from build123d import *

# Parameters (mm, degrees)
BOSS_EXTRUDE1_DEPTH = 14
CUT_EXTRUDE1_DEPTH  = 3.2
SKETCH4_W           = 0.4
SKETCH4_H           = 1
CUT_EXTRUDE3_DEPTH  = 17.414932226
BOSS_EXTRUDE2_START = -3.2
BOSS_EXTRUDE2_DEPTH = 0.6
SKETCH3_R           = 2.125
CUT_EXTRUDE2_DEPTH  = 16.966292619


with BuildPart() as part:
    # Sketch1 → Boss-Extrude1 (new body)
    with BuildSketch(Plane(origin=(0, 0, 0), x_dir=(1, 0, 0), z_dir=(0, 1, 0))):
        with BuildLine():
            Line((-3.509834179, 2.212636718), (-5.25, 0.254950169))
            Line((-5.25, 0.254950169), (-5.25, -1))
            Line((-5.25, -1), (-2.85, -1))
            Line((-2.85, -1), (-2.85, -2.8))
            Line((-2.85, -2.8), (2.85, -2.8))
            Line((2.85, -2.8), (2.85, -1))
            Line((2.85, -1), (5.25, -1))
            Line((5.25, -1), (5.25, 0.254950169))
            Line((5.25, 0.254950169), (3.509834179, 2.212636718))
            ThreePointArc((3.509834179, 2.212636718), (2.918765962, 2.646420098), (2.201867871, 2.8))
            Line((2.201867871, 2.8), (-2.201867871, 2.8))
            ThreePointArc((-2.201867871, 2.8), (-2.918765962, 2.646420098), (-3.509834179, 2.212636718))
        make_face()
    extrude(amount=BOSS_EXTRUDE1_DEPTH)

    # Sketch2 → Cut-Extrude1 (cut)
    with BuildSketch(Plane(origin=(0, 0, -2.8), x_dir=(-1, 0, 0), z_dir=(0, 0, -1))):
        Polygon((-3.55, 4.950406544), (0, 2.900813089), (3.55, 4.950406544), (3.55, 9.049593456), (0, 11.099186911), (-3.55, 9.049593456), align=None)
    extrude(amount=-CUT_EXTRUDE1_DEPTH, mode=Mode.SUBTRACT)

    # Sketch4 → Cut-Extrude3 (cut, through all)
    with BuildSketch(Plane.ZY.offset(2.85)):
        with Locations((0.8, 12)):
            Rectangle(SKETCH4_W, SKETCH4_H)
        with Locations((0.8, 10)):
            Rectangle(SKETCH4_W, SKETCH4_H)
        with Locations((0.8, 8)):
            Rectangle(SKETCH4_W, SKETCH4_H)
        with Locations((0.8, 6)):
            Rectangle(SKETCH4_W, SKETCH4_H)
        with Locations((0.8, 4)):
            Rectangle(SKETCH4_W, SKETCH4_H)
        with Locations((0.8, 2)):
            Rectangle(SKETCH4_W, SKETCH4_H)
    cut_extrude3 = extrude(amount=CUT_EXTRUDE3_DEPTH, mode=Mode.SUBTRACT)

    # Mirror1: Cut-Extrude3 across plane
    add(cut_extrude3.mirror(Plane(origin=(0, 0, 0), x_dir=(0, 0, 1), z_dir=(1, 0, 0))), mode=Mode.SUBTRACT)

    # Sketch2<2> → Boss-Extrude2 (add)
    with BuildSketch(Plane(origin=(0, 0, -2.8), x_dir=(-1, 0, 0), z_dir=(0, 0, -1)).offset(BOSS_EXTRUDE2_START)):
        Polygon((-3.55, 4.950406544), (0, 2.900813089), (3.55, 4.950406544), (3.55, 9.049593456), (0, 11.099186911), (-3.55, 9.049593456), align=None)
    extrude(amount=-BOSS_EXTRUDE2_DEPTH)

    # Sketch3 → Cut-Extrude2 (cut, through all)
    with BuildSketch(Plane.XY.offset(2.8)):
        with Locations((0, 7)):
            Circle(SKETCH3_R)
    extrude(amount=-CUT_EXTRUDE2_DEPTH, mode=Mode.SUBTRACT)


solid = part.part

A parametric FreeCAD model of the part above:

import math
import FreeCAD as App
import Part
import Sketcher

V = App.Vector
Q = App.Units.Quantity

doc = App.newDocument("Part")
params = doc.addObject("Spreadsheet::Sheet", "Params")
for row, (alias, value) in enumerate([
    ("sketch1_radius", "1.75 mm"),
    ("sketch1_width", "2.4 mm"),
    ("sketch1_width2", "5.7 mm"),
    ("sketch1_height", "1.8 mm"),
    ("pad1_length", "14 mm"),
    ("pocket1_length", "3.2 mm"),
    ("sketch3_width", "1 mm"),
    ("sketch3_height", "0.4 mm"),
    ("pad2_length", "0.6 mm"),
    ("sketch5_diameter", "4.25 mm"),
], start=1):
    params.set(f"A{row}", alias)
    params.set(f"B{row}", "=" + value)
    params.setAlias(f"B{row}", alias)

body = doc.addObject("PartDesign::Body", "Body")

# Sketch on XZ plane
sketch1 = body.newObject("Sketcher::SketchObject", "Sketch")
sketch1.AttachmentSupport = (doc.getObject("XZ_Plane"), [""])
sketch1.MapMode = "FlatFace"
sketch1.addGeometry(Part.LineSegment(V(-3.5, -2.2, 0), V(-5.2, -0.3, 0)), False)
sketch1.addGeometry(Part.LineSegment(V(-5.2, -0.3, 0), V(-5.2, 1, 0)), False)
sketch1.addGeometry(Part.LineSegment(V(-5.2, 1, 0), V(-2.9, 1, 0)), False)
sketch1.addGeometry(Part.LineSegment(V(-2.9, 1, 0), V(-2.9, 2.8, 0)), False)
sketch1.addGeometry(Part.LineSegment(V(-2.9, 2.8, 0), V(2.9, 2.8, 0)), False)
sketch1.addGeometry(Part.LineSegment(V(2.9, 2.8, 0), V(2.9, 1, 0)), False)
sketch1.addGeometry(Part.LineSegment(V(2.9, 1, 0), V(5.2, 1, 0)), False)
sketch1.addGeometry(Part.LineSegment(V(5.2, 1, 0), V(5.2, -0.3, 0)), False)
sketch1.addGeometry(Part.LineSegment(V(5.2, -0.3, 0), V(3.5, -2.2, 0)), False)
sketch1.addGeometry(Part.ArcOfCircle(Part.Circle(V(2.2, -1.1, 0), V(0, 0, 1), 1.7), math.radians(-90), math.radians(-42)), False)
sketch1.addGeometry(Part.LineSegment(V(2.2, -2.8, 0), V(-2.2, -2.8, 0)), False)
sketch1.addGeometry(Part.ArcOfCircle(Part.Circle(V(-2.2, -1.1, 0), V(0, 0, 1), 1.7), math.radians(-138), math.radians(-90)), False)
sketch1.addConstraint(Sketcher.Constraint("Coincident", 0, 2, 1, 1))
sketch1.addConstraint(Sketcher.Constraint("Coincident", 1, 2, 2, 1))
sketch1.addConstraint(Sketcher.Constraint("Coincident", 2, 2, 3, 1))
sketch1.addConstraint(Sketcher.Constraint("Coincident", 3, 2, 4, 1))
sketch1.addConstraint(Sketcher.Constraint("Coincident", 4, 2, 5, 1))
sketch1.addConstraint(Sketcher.Constraint("Coincident", 5, 2, 6, 1))
sketch1.addConstraint(Sketcher.Constraint("Coincident", 6, 2, 7, 1))
sketch1.addConstraint(Sketcher.Constraint("Coincident", 7, 2, 8, 1))
sketch1.addConstraint(Sketcher.Constraint("Tangent", 8, 2, 9, 2))
sketch1.addConstraint(Sketcher.Constraint("Tangent", 9, 1, 10, 1))
sketch1.addConstraint(Sketcher.Constraint("Tangent", 10, 2, 11, 2))
sketch1.addConstraint(Sketcher.Constraint("Tangent", 11, 1, 0, 1))
sketch1.addConstraint(Sketcher.Constraint("Vertical", 1))
sketch1.addConstraint(Sketcher.Constraint("Horizontal", 2))
sketch1.addConstraint(Sketcher.Constraint("Vertical", 3))
sketch1.addConstraint(Sketcher.Constraint("Horizontal", 4))
sketch1.addConstraint(Sketcher.Constraint("Vertical", 5))
sketch1.addConstraint(Sketcher.Constraint("Horizontal", 6))
sketch1.addConstraint(Sketcher.Constraint("Vertical", 7))
sketch1.addConstraint(Sketcher.Constraint("Horizontal", 10))
sketch1.addConstraint(Sketcher.Constraint("Equal", 9, 11))
sketch1.addConstraint(Sketcher.Constraint("Symmetric", 2, 2, 5, 2, -2))
sketch1.addConstraint(Sketcher.Constraint("Symmetric", 0, 2, 7, 2, -2))
sketch1.addConstraint(Sketcher.Constraint("Horizontal", 8, 2, 11, 1))
sketch1.addConstraint(Sketcher.Constraint("Radius", 9, Q("1.75 mm")))
sketch1.addConstraint(Sketcher.Constraint("DistanceX", 2, 1, 2, 2, Q("2.4 mm")))
sketch1.addConstraint(Sketcher.Constraint("DistanceX", 4, 1, 4, 2, Q("5.7 mm")))
sketch1.addConstraint(Sketcher.Constraint("DistanceY", 3, 1, 3, 2, Q("1.8 mm")))
sketch1.addConstraint(Sketcher.Constraint("DistanceY", -1, 1, 1, 2, Q("1 mm")))
sketch1.addConstraint(Sketcher.Constraint("DistanceY", 9, 1, -1, 1, Q("2.8 mm")))
sketch1.addConstraint(Sketcher.Constraint("DistanceY", 1, 1, 1, 2, Q("1.25495 mm")))
sketch1.addConstraint(Sketcher.Constraint("DistanceX", 10, 2, 10, 1, Q("4.403736 mm")))
sketch1.setExpression("Constraints[24]", "Params.sketch1_radius")
sketch1.setExpression("Constraints[25]", "Params.sketch1_width")
sketch1.setExpression("Constraints[26]", "Params.sketch1_width2")
sketch1.setExpression("Constraints[27]", "Params.sketch1_height")
pad1 = body.newObject("PartDesign::Pad", "Pad")
pad1.Profile = sketch1
pad1.setExpression("Length", "Params.pad1_length")
pad1.Reversed = True

# Sketch on XY plane
sketch2 = body.newObject("Sketcher::SketchObject", "Sketch001")
sketch2.AttachmentSupport = (doc.getObject("XY_Plane"), [""])
sketch2.MapMode = "FlatFace"
sketch2.AttachmentOffset = App.Placement(V(0, 0, -2.8), App.Rotation())
sketch2.addGeometry(Part.LineSegment(V(3.5, 5, 0), V(0, 2.9, 0)), False)
sketch2.addGeometry(Part.LineSegment(V(0, 2.9, 0), V(-3.5, 5, 0)), False)
sketch2.addGeometry(Part.LineSegment(V(-3.5, 5, 0), V(-3.5, 9, 0)), False)
sketch2.addGeometry(Part.LineSegment(V(-3.5, 9, 0), V(0, 11.1, 0)), False)
sketch2.addGeometry(Part.LineSegment(V(0, 11.1, 0), V(3.5, 9, 0)), False)
sketch2.addGeometry(Part.LineSegment(V(3.5, 9, 0), V(3.5, 5, 0)), False)
sketch2.addConstraint(Sketcher.Constraint("Coincident", 0, 2, 1, 1))
sketch2.addConstraint(Sketcher.Constraint("Coincident", 1, 2, 2, 1))
sketch2.addConstraint(Sketcher.Constraint("Coincident", 2, 2, 3, 1))
sketch2.addConstraint(Sketcher.Constraint("Coincident", 3, 2, 4, 1))
sketch2.addConstraint(Sketcher.Constraint("Coincident", 4, 2, 5, 1))
sketch2.addConstraint(Sketcher.Constraint("Coincident", 5, 2, 0, 1))
sketch2.addConstraint(Sketcher.Constraint("Vertical", 2))
sketch2.addConstraint(Sketcher.Constraint("Vertical", 5))
sketch2.addConstraint(Sketcher.Constraint("Symmetric", 2, 2, 4, 2, -2))
sketch2.addConstraint(Sketcher.Constraint("PointOnObject", 0, 2, -2))
sketch2.addConstraint(Sketcher.Constraint("PointOnObject", 3, 2, -2))
sketch2.addConstraint(Sketcher.Constraint("Parallel", 0, 3))
sketch2.addConstraint(Sketcher.Constraint("Parallel", 1, 4))
sketch2.addConstraint(Sketcher.Constraint("Angle", 0, Q("-150 deg")))
sketch2.addConstraint(Sketcher.Constraint("DistanceX", 2, 2, 4, 2, Q("7.1 mm")))
sketch2.addConstraint(Sketcher.Constraint("DistanceY", 2, 1, 2, 2, Q("4.099187 mm")))
sketch2.addConstraint(Sketcher.Constraint("DistanceY", -1, 1, 0, 2, Q("2.900813 mm")))
pocket1 = body.newObject("PartDesign::Pocket", "Pocket")
pocket1.Profile = sketch2
pocket1.setExpression("Length", "Params.pocket1_length")
pocket1.Reversed = True

# Sketch on YZ plane
sketch3 = body.newObject("Sketcher::SketchObject", "Sketch002")
sketch3.AttachmentSupport = (doc.getObject("YZ_Plane"), [""])
sketch3.MapMode = "FlatFace"
sketch3.AttachmentOffset = App.Placement(V(0, 0, -2.85), App.Rotation())
sketch3.addGeometry(Part.LineSegment(V(12.5, 0.6, 0), V(11.5, 0.6, 0)), False)
sketch3.addGeometry(Part.LineSegment(V(11.5, 0.6, 0), V(11.5, 1, 0)), False)
sketch3.addGeometry(Part.LineSegment(V(11.5, 1, 0), V(12.5, 1, 0)), False)
sketch3.addGeometry(Part.LineSegment(V(12.5, 1, 0), V(12.5, 0.6, 0)), False)
sketch3.addGeometry(Part.LineSegment(V(10.5, 0.6, 0), V(9.5, 0.6, 0)), False)
sketch3.addGeometry(Part.LineSegment(V(9.5, 0.6, 0), V(9.5, 1, 0)), False)
sketch3.addGeometry(Part.LineSegment(V(9.5, 1, 0), V(10.5, 1, 0)), False)
sketch3.addGeometry(Part.LineSegment(V(10.5, 1, 0), V(10.5, 0.6, 0)), False)
sketch3.addGeometry(Part.LineSegment(V(8.5, 0.6, 0), V(7.5, 0.6, 0)), False)
sketch3.addGeometry(Part.LineSegment(V(7.5, 0.6, 0), V(7.5, 1, 0)), False)
sketch3.addGeometry(Part.LineSegment(V(7.5, 1, 0), V(8.5, 1, 0)), False)
sketch3.addGeometry(Part.LineSegment(V(8.5, 1, 0), V(8.5, 0.6, 0)), False)
sketch3.addGeometry(Part.LineSegment(V(6.5, 0.6, 0), V(5.5, 0.6, 0)), False)
sketch3.addGeometry(Part.LineSegment(V(5.5, 0.6, 0), V(5.5, 1, 0)), False)
sketch3.addGeometry(Part.LineSegment(V(5.5, 1, 0), V(6.5, 1, 0)), False)
sketch3.addGeometry(Part.LineSegment(V(6.5, 1, 0), V(6.5, 0.6, 0)), False)
sketch3.addGeometry(Part.LineSegment(V(4.5, 0.6, 0), V(3.5, 0.6, 0)), False)
sketch3.addGeometry(Part.LineSegment(V(3.5, 0.6, 0), V(3.5, 1, 0)), False)
sketch3.addGeometry(Part.LineSegment(V(3.5, 1, 0), V(4.5, 1, 0)), False)
sketch3.addGeometry(Part.LineSegment(V(4.5, 1, 0), V(4.5, 0.6, 0)), False)
sketch3.addGeometry(Part.LineSegment(V(2.5, 0.6, 0), V(1.5, 0.6, 0)), False)
sketch3.addGeometry(Part.LineSegment(V(1.5, 0.6, 0), V(1.5, 1, 0)), False)
sketch3.addGeometry(Part.LineSegment(V(1.5, 1, 0), V(2.5, 1, 0)), False)
sketch3.addGeometry(Part.LineSegment(V(2.5, 1, 0), V(2.5, 0.6, 0)), False)
sketch3.addConstraint(Sketcher.Constraint("Coincident", 0, 2, 1, 1))
sketch3.addConstraint(Sketcher.Constraint("Coincident", 1, 2, 2, 1))
sketch3.addConstraint(Sketcher.Constraint("Coincident", 2, 2, 3, 1))
sketch3.addConstraint(Sketcher.Constraint("Coincident", 3, 2, 0, 1))
sketch3.addConstraint(Sketcher.Constraint("Coincident", 4, 2, 5, 1))
sketch3.addConstraint(Sketcher.Constraint("Coincident", 5, 2, 6, 1))
sketch3.addConstraint(Sketcher.Constraint("Coincident", 6, 2, 7, 1))
sketch3.addConstraint(Sketcher.Constraint("Coincident", 7, 2, 4, 1))
sketch3.addConstraint(Sketcher.Constraint("Coincident", 8, 2, 9, 1))
sketch3.addConstraint(Sketcher.Constraint("Coincident", 9, 2, 10, 1))
sketch3.addConstraint(Sketcher.Constraint("Coincident", 10, 2, 11, 1))
sketch3.addConstraint(Sketcher.Constraint("Coincident", 11, 2, 8, 1))
sketch3.addConstraint(Sketcher.Constraint("Coincident", 12, 2, 13, 1))
sketch3.addConstraint(Sketcher.Constraint("Coincident", 13, 2, 14, 1))
sketch3.addConstraint(Sketcher.Constraint("Coincident", 14, 2, 15, 1))
sketch3.addConstraint(Sketcher.Constraint("Coincident", 15, 2, 12, 1))
sketch3.addConstraint(Sketcher.Constraint("Coincident", 16, 2, 17, 1))
sketch3.addConstraint(Sketcher.Constraint("Coincident", 17, 2, 18, 1))
sketch3.addConstraint(Sketcher.Constraint("Coincident", 18, 2, 19, 1))
sketch3.addConstraint(Sketcher.Constraint("Coincident", 19, 2, 16, 1))
sketch3.addConstraint(Sketcher.Constraint("Coincident", 20, 2, 21, 1))
sketch3.addConstraint(Sketcher.Constraint("Coincident", 21, 2, 22, 1))
sketch3.addConstraint(Sketcher.Constraint("Coincident", 22, 2, 23, 1))
sketch3.addConstraint(Sketcher.Constraint("Coincident", 23, 2, 20, 1))
sketch3.addConstraint(Sketcher.Constraint("Horizontal", 0))
sketch3.addConstraint(Sketcher.Constraint("Vertical", 1))
sketch3.addConstraint(Sketcher.Constraint("Horizontal", 2))
sketch3.addConstraint(Sketcher.Constraint("Vertical", 3))
sketch3.addConstraint(Sketcher.Constraint("Horizontal", 4))
sketch3.addConstraint(Sketcher.Constraint("Vertical", 5))
sketch3.addConstraint(Sketcher.Constraint("Horizontal", 6))
sketch3.addConstraint(Sketcher.Constraint("Vertical", 7))
sketch3.addConstraint(Sketcher.Constraint("Horizontal", 8))
sketch3.addConstraint(Sketcher.Constraint("Vertical", 9))
sketch3.addConstraint(Sketcher.Constraint("Horizontal", 10))
sketch3.addConstraint(Sketcher.Constraint("Vertical", 11))
sketch3.addConstraint(Sketcher.Constraint("Horizontal", 12))
sketch3.addConstraint(Sketcher.Constraint("Vertical", 13))
sketch3.addConstraint(Sketcher.Constraint("Horizontal", 14))
sketch3.addConstraint(Sketcher.Constraint("Vertical", 15))
sketch3.addConstraint(Sketcher.Constraint("Horizontal", 16))
sketch3.addConstraint(Sketcher.Constraint("Vertical", 17))
sketch3.addConstraint(Sketcher.Constraint("Horizontal", 18))
sketch3.addConstraint(Sketcher.Constraint("Vertical", 19))
sketch3.addConstraint(Sketcher.Constraint("Horizontal", 20))
sketch3.addConstraint(Sketcher.Constraint("Vertical", 21))
sketch3.addConstraint(Sketcher.Constraint("Horizontal", 22))
sketch3.addConstraint(Sketcher.Constraint("Vertical", 23))
sketch3.addConstraint(Sketcher.Constraint("Horizontal", 3, 2, 4, 2))
sketch3.addConstraint(Sketcher.Constraint("Horizontal", 2, 2, 5, 2))
sketch3.addConstraint(Sketcher.Constraint("Horizontal", 7, 2, 8, 2))
sketch3.addConstraint(Sketcher.Constraint("Horizontal", 6, 2, 9, 2))
sketch3.addConstraint(Sketcher.Constraint("Horizontal", 11, 2, 12, 2))
sketch3.addConstraint(Sketcher.Constraint("Horizontal", 10, 2, 13, 2))
sketch3.addConstraint(Sketcher.Constraint("Horizontal", 15, 2, 16, 2))
sketch3.addConstraint(Sketcher.Constraint("Horizontal", 14, 2, 17, 2))
sketch3.addConstraint(Sketcher.Constraint("Horizontal", 19, 2, 20, 2))
sketch3.addConstraint(Sketcher.Constraint("Horizontal", 18, 2, 21, 2))
sketch3.addConstraint(Sketcher.Constraint("Equal", 2, 4))
sketch3.addConstraint(Sketcher.Constraint("Equal", 6, 8))
sketch3.addConstraint(Sketcher.Constraint("Equal", 10, 12))
sketch3.addConstraint(Sketcher.Constraint("Equal", 14, 16))
sketch3.addConstraint(Sketcher.Constraint("Equal", 18, 20))
sketch3.addConstraint(Sketcher.Constraint("DistanceX", 0, 2, 0, 1, Q("1 mm")))
sketch3.addConstraint(Sketcher.Constraint("DistanceY", 1, 1, 1, 2, Q("0.4 mm")))
sketch3.addConstraint(Sketcher.Constraint("DistanceY", -1, 1, 1, 2, Q("1 mm")))
sketch3.addConstraint(Sketcher.Constraint("DistanceX", 4, 2, 0, 2, Q("2 mm")))
sketch3.addConstraint(Sketcher.Constraint("DistanceX", 8, 2, 4, 2, Q("2 mm")))
sketch3.addConstraint(Sketcher.Constraint("DistanceX", 12, 2, 8, 2, Q("2 mm")))
sketch3.addConstraint(Sketcher.Constraint("DistanceX", 16, 2, 12, 2, Q("2 mm")))
sketch3.addConstraint(Sketcher.Constraint("DistanceX", 20, 2, 16, 2, Q("2 mm")))
sketch3.addConstraint(Sketcher.Constraint("DistanceX", -1, 1, 0, 2, Q("11.5 mm")))
sketch3.setExpression("Constraints[63]", "Params.sketch3_width")
sketch3.setExpression("Constraints[64]", "Params.sketch3_height")
pocket2 = body.newObject("PartDesign::Pocket", "Pocket001")
pocket2.Profile = sketch3
pocket2.Type = "ThroughAll"
doc.recompute()

mirrored = body.newObject("PartDesign::Mirrored", "Mirrored")
mirrored.Originals = [pocket2]
mirrored.MirrorPlane = (doc.getObject("YZ_Plane"), [""])
body.Tip = mirrored

# Sketch on XY plane
sketch4 = body.newObject("Sketcher::SketchObject", "Sketch003")
sketch4.AttachmentSupport = (doc.getObject("XY_Plane"), [""])
sketch4.MapMode = "FlatFace"
sketch4.AttachmentOffset = App.Placement(V(0, 0, 0.4), App.Rotation())
sketch4.addGeometry(Part.LineSegment(V(3.5, 5, 0), V(0, 2.9, 0)), False)
sketch4.addGeometry(Part.LineSegment(V(0, 2.9, 0), V(-3.5, 5, 0)), False)
sketch4.addGeometry(Part.LineSegment(V(-3.5, 5, 0), V(-3.5, 9, 0)), False)
sketch4.addGeometry(Part.LineSegment(V(-3.5, 9, 0), V(0, 11.1, 0)), False)
sketch4.addGeometry(Part.LineSegment(V(0, 11.1, 0), V(3.5, 9, 0)), False)
sketch4.addGeometry(Part.LineSegment(V(3.5, 9, 0), V(3.5, 5, 0)), False)
sketch4.addConstraint(Sketcher.Constraint("Coincident", 0, 2, 1, 1))
sketch4.addConstraint(Sketcher.Constraint("Coincident", 1, 2, 2, 1))
sketch4.addConstraint(Sketcher.Constraint("Coincident", 2, 2, 3, 1))
sketch4.addConstraint(Sketcher.Constraint("Coincident", 3, 2, 4, 1))
sketch4.addConstraint(Sketcher.Constraint("Coincident", 4, 2, 5, 1))
sketch4.addConstraint(Sketcher.Constraint("Coincident", 5, 2, 0, 1))
sketch4.addConstraint(Sketcher.Constraint("Vertical", 2))
sketch4.addConstraint(Sketcher.Constraint("Vertical", 5))
sketch4.addConstraint(Sketcher.Constraint("Symmetric", 2, 2, 4, 2, -2))
sketch4.addConstraint(Sketcher.Constraint("PointOnObject", 0, 2, -2))
sketch4.addConstraint(Sketcher.Constraint("PointOnObject", 3, 2, -2))
sketch4.addConstraint(Sketcher.Constraint("Parallel", 0, 3))
sketch4.addConstraint(Sketcher.Constraint("Parallel", 1, 4))
sketch4.addConstraint(Sketcher.Constraint("Angle", 0, Q("-150 deg")))
sketch4.addConstraint(Sketcher.Constraint("DistanceX", 2, 2, 4, 2, Q("7.1 mm")))
sketch4.addConstraint(Sketcher.Constraint("DistanceY", 2, 1, 2, 2, Q("4.099187 mm")))
sketch4.addConstraint(Sketcher.Constraint("DistanceY", -1, 1, 0, 2, Q("2.900813 mm")))
pad2 = body.newObject("PartDesign::Pad", "Pad001")
pad2.Profile = sketch4
pad2.setExpression("Length", "Params.pad2_length")

# Sketch on XY plane
sketch5 = body.newObject("Sketcher::SketchObject", "Sketch004")
sketch5.AttachmentSupport = (doc.getObject("XY_Plane"), [""])
sketch5.MapMode = "FlatFace"
sketch5.AttachmentOffset = App.Placement(V(0, 0, 2.8), App.Rotation())
sketch5.addGeometry(Part.Circle(V(0, 7, 0), V(0, 0, 1), 2.1), False)
sketch5.addConstraint(Sketcher.Constraint("PointOnObject", 0, 3, -2))
sketch5.addConstraint(Sketcher.Constraint("Diameter", 0, Q("4.25 mm")))
sketch5.addConstraint(Sketcher.Constraint("DistanceY", -1, 1, 0, 3, Q("7 mm")))
sketch5.setExpression("Constraints[1]", "Params.sketch5_diameter")
pocket3 = body.newObject("PartDesign::Pocket", "Pocket002")
pocket3.Profile = sketch5
pocket3.Type = "ThroughAll"

doc.recompute()
